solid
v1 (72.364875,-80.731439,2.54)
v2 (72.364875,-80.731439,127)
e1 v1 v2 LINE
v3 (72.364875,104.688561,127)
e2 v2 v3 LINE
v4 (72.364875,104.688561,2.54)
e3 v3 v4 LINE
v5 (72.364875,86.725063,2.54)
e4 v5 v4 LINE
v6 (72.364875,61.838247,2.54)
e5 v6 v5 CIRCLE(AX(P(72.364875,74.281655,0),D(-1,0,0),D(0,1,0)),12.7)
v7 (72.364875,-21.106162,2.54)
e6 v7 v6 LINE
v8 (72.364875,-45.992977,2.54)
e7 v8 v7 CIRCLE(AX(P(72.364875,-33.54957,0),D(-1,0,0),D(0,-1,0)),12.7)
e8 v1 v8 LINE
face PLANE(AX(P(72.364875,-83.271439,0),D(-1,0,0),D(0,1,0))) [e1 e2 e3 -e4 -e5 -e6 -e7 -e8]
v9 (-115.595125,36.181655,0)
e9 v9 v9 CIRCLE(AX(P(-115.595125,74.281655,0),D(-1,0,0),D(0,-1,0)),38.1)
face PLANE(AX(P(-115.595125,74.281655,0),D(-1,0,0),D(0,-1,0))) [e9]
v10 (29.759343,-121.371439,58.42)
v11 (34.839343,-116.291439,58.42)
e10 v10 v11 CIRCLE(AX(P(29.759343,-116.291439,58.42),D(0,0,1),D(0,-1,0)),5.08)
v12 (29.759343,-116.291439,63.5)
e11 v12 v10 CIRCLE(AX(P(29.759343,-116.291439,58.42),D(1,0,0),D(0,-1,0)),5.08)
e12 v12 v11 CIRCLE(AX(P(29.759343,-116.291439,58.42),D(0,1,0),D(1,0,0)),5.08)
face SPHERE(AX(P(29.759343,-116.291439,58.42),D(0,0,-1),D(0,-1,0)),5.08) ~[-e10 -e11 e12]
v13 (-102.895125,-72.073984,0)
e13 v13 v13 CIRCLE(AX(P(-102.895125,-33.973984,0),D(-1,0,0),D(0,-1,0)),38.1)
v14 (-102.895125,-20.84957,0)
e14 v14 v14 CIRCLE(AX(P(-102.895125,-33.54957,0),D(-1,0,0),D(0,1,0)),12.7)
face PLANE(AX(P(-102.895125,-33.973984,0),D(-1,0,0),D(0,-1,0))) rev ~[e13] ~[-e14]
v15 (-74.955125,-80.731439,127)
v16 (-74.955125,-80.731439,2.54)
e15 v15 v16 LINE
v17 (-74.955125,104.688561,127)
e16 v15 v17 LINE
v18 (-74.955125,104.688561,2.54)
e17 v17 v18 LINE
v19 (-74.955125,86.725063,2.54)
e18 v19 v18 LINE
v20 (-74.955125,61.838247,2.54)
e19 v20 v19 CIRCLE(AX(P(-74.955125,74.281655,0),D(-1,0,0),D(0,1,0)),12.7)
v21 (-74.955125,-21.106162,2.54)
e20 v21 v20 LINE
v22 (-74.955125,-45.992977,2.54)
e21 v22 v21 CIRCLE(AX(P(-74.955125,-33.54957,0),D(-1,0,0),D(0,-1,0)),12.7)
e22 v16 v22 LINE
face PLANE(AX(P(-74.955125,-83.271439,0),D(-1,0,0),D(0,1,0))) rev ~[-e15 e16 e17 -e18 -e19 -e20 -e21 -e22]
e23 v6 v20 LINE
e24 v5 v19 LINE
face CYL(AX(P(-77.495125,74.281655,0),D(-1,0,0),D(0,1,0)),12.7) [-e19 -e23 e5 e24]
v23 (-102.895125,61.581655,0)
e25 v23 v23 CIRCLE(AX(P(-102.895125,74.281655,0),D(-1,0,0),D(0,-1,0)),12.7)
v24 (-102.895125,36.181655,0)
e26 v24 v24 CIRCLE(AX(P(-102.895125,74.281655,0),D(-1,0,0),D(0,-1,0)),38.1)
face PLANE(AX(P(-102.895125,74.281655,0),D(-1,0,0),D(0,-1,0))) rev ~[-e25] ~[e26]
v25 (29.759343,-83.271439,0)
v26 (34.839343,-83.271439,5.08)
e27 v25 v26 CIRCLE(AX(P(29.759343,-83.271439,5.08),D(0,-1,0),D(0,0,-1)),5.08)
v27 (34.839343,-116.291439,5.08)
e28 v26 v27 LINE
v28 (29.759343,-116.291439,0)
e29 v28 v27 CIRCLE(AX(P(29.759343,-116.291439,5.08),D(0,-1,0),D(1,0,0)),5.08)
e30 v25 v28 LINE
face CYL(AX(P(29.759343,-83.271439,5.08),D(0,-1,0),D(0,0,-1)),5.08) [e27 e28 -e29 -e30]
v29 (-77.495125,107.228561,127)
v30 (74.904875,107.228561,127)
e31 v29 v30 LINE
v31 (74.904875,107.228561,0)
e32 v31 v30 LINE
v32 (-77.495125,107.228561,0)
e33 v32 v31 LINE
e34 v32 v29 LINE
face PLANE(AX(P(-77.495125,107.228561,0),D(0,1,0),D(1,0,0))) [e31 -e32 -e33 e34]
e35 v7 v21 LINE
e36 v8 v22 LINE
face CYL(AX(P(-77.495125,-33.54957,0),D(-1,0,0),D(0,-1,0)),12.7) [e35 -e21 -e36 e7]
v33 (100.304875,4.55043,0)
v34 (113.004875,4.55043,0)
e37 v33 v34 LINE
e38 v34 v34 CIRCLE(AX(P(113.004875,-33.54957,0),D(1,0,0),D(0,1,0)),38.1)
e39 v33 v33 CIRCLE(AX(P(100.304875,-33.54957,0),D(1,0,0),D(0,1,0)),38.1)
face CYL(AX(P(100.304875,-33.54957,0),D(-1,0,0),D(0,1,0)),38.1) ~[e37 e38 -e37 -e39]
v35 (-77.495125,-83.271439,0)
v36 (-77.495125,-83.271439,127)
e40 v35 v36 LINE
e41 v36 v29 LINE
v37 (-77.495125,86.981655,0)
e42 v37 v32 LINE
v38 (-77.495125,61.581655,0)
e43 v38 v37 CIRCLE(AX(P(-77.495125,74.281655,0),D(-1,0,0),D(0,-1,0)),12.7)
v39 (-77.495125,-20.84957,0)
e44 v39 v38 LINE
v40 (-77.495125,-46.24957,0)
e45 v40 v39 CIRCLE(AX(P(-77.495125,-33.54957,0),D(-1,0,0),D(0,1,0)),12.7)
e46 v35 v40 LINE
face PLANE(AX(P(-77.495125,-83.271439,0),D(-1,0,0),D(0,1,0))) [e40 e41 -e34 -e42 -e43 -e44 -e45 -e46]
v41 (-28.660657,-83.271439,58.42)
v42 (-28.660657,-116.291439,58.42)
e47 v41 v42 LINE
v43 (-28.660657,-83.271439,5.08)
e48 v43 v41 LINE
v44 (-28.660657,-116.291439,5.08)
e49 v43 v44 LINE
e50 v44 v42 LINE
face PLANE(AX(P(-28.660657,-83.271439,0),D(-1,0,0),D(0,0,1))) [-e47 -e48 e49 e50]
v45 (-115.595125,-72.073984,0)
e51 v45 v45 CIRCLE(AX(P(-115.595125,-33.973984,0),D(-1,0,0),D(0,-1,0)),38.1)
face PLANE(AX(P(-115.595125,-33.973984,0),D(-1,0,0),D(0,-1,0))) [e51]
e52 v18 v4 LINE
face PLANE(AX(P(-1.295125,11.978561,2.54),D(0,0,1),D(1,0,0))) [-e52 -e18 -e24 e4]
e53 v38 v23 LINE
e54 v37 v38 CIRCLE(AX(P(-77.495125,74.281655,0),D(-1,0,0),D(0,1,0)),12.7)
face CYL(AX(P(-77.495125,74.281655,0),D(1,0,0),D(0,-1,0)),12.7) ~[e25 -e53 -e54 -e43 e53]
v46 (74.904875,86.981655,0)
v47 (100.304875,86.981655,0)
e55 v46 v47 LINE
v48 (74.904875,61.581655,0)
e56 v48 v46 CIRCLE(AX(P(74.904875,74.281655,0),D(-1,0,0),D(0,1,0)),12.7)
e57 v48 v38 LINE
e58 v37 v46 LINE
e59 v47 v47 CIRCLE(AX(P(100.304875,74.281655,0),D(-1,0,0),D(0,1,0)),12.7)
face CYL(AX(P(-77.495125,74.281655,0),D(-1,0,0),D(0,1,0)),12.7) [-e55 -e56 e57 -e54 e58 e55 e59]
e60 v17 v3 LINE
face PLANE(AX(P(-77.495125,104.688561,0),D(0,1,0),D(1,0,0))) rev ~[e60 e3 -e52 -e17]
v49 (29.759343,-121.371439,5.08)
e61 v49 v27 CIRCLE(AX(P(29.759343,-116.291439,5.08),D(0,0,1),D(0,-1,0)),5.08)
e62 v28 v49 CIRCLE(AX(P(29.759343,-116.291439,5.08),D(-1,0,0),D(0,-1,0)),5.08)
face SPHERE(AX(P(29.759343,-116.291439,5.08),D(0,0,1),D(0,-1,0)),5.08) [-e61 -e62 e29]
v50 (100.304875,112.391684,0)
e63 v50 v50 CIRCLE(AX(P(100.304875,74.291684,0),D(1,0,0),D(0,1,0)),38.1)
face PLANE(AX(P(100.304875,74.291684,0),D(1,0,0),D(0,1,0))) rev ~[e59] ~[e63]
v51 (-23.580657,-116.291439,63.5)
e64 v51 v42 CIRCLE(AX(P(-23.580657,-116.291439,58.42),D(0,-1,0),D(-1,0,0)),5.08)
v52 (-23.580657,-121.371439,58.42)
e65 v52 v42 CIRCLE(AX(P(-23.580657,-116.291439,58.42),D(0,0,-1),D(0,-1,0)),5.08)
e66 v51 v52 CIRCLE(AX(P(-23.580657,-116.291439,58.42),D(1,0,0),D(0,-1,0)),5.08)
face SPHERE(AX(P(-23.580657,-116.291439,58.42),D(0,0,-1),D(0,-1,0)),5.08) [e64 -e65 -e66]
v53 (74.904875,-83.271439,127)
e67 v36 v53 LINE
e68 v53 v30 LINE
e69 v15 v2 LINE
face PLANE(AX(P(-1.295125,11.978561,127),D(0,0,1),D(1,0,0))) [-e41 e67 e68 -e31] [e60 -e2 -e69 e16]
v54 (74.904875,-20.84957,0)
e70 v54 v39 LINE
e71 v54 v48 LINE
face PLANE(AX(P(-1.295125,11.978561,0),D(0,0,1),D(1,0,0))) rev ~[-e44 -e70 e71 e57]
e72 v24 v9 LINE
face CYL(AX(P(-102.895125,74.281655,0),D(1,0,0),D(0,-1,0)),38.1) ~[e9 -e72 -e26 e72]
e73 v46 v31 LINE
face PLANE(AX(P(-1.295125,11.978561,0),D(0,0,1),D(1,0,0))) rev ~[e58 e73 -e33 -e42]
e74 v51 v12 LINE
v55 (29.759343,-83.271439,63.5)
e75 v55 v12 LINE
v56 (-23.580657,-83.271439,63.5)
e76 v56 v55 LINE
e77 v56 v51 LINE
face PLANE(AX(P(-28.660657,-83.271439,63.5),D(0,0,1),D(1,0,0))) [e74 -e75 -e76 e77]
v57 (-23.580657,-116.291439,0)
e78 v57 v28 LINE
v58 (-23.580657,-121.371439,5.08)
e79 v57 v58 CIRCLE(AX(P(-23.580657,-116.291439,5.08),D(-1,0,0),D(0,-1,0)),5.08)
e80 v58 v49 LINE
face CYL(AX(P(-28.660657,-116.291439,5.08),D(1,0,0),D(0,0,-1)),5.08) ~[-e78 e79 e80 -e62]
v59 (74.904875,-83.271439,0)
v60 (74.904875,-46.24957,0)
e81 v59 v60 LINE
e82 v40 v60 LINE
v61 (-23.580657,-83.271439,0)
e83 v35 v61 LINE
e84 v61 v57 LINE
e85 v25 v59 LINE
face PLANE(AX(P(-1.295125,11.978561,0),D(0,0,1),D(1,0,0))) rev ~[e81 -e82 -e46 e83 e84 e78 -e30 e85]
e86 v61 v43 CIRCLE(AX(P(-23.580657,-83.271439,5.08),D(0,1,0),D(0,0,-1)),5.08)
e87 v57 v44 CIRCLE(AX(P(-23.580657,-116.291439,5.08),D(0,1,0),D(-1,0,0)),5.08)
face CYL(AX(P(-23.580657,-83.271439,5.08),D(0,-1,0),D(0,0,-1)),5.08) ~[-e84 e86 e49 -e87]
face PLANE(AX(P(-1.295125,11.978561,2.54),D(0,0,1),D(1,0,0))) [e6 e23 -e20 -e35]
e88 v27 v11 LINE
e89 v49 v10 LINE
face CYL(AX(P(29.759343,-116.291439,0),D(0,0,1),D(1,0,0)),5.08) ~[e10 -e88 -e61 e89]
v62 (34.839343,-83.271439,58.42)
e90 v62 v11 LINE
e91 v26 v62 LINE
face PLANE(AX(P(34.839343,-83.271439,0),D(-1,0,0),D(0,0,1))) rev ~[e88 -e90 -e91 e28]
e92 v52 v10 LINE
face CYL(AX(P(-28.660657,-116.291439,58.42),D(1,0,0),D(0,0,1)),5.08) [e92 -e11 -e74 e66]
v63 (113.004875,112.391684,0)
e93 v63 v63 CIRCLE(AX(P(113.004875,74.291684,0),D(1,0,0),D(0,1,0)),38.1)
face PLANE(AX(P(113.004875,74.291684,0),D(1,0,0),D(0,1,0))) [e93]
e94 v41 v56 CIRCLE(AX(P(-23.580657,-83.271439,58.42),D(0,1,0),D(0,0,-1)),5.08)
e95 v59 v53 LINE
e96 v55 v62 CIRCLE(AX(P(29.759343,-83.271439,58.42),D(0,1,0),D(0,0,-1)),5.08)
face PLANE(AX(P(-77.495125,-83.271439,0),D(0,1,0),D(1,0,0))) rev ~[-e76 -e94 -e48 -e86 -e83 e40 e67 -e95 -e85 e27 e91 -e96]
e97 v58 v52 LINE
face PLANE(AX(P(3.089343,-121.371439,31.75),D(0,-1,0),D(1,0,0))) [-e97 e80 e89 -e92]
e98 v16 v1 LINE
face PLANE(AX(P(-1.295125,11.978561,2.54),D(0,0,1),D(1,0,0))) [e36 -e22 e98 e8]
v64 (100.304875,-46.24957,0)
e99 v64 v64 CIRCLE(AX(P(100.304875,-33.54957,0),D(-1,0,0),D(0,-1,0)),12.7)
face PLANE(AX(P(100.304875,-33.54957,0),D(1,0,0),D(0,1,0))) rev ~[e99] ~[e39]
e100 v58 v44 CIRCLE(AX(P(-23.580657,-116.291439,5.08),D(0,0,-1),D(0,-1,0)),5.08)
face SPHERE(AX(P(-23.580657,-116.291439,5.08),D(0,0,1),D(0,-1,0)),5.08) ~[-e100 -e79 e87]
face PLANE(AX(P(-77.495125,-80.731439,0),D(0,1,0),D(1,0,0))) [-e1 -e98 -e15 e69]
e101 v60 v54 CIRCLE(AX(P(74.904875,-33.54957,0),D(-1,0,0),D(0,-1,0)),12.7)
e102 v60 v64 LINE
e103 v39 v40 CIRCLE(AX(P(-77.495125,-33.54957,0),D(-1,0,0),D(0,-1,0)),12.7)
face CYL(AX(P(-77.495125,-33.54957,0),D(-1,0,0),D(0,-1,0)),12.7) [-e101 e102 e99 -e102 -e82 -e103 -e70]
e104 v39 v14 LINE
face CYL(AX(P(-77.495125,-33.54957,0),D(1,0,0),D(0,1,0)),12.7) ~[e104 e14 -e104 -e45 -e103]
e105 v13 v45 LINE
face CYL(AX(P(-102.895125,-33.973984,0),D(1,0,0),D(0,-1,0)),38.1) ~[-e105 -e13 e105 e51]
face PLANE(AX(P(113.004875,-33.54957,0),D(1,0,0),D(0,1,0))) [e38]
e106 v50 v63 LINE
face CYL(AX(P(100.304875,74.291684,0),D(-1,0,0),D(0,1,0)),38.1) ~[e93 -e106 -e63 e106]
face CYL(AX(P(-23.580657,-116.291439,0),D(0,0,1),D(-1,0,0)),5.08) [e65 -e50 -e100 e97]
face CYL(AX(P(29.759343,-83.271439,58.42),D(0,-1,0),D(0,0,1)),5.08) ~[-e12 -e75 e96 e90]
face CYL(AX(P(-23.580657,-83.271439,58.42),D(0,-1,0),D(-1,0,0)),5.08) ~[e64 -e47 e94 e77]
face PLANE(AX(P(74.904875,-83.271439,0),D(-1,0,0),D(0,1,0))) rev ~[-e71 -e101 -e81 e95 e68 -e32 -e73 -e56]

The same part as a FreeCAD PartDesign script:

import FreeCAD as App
import Part
import Sketcher
from FreeCAD import Vector
Q = App.Units.Quantity


def edges_at(feature, points):
    """Names of the edges that pass closest to the given points."""
    edges = feature.Shape.Edges
    near = lambda p: min(range(len(edges)), key=lambda i: edges[i].distToShape(Part.Vertex(*p))[0])
    return sorted({f"Edge{near(p) + 1}" for p in points})


def faces_at(feature, points):
    """Names of the faces that lie closest to the given points."""
    faces = feature.Shape.Faces
    near = lambda p: min(range(len(faces)), key=lambda i: faces[i].distToShape(Part.Vertex(*p))[0])
    return sorted({f"Face{near(p) + 1}" for p in points})


def add_polygon(sketch, points):
    """Adds a closed chain of lines whose ends are joined by coincident constraints."""
    first, n = sketch.GeometryCount, len(points)
    for a, b in zip(points, points[1:] + points[:1]):
        sketch.addGeometry(Part.LineSegment(App.Vector(*a, 0), App.Vector(*b, 0)), False)
    for i in range(n):
        sketch.addConstraint(Sketcher.Constraint("Coincident", first + i, 2, first + (i + 1) % n, 1))

doc = App.newDocument("Part")
body = doc.addObject("PartDesign::Body", "Body")

sketch1 = body.newObject("Sketcher::SketchObject", "Sketch")
sketch1.AttachmentSupport = (doc.getObject("XY_Plane"), [""])
sketch1.MapMode = "FlatFace"
add_polygon(sketch1, [(-77, 107), (-77, -83), (75, -83), (75, 107)])
sketch1.addConstraint([
    Sketcher.Constraint("Vertical", 0),
    Sketcher.Constraint("Horizontal", 1),
    Sketcher.Constraint("Vertical", 2),
    Sketcher.Constraint("Horizontal", 3),
    Sketcher.Constraint("DistanceX", 1, 1, 1, 2, Q("6 in")),
    Sketcher.Constraint("DistanceY", 0, 2, 0, 1, Q("7.5 in")),
    Sketcher.Constraint("DistanceY", 0, 2, -1, 1, 83.271439),
    Sketcher.Constraint("DistanceX", 0, 2, -1, 1, 77.495125),
])
pad1 = body.newObject("PartDesign::Pad", "Pad")
pad1.Profile = sketch1
pad1.Length = Q("5 in")
doc.recompute()

thickness = body.newObject("PartDesign::Thickness", "Thickness")
thickness.Base = (pad1, faces_at(pad1, [(-1.295, 11.979, 127)]))
thickness.Value = Q("0.1 in")
thickness.Reversed = True
thickness.Join = "Arc"

sketch2 = body.newObject("Sketcher::SketchObject", "Sketch001")
sketch2.AttachmentSupport = (doc.getObject("XZ_Plane"), [""])
sketch2.MapMode = "FlatFace"
sketch2.AttachmentOffset = App.Placement(Vector(0, 0, 83.271439), App.Rotation())
add_polygon(sketch2, [(-29, 64), (-29, 0), (35, 0), (35, 64)])
sketch2.addConstraint([
    Sketcher.Constraint("Vertical", 0),
    Sketcher.Constraint("Horizontal", 1),
    Sketcher.Constraint("Vertical", 2),
    Sketcher.Constraint("Horizontal", 3),
    Sketcher.Constraint("PointOnObject", 0, 2, -1),
    Sketcher.Constraint("Equal", 3, 0),
    Sketcher.Constraint("DistanceX", 1, 1, 1, 2, Q("2.5 in")),
    Sketcher.Constraint("DistanceX", 0, 2, -1, 1, 28.660657),
])
pad2 = body.newObject("PartDesign::Pad", "Pad001")
pad2.Profile = sketch2
pad2.Length = Q("1.5 in")
doc.recompute()

fillet = body.newObject("PartDesign::Fillet", "Fillet")
fillet.Base = (pad2, edges_at(pad2, [
    (-28.661, -121.371, 31.75),
    (34.839, -121.371, 31.75),
    (3.089, -121.371, 63.5),
    (34.839, -102.321, 63.5),
    (-28.661, -102.321, 63.5),
    (3.089, -121.371, 0),
    (-28.661, -102.321, 0),
    (34.839, -102.321, 0),
]))
fillet.Radius = Q("0.2 in")

sketch3 = body.newObject("Sketcher::SketchObject", "Sketch002")
sketch3.AttachmentSupport = (doc.getObject("YZ_Plane"), [""])
sketch3.MapMode = "FlatFace"
sketch3.AttachmentOffset = App.Placement(Vector(0, 0, -77.495125), App.Rotation())
sketch3.addGeometry([
    Part.Circle(Vector(-34, 0, 0), Vector(0, 0, 1), 13),
    Part.Circle(Vector(74, 0, 0), Vector(0, 0, 1), 13),
], False)
sketch3.addConstraint([
    Sketcher.Constraint("Equal", 0, 1),
    Sketcher.Constraint("PointOnObject", 0, 3, -1),
    Sketcher.Constraint("PointOnObject", 1, 3, -1),
    Sketcher.Constraint("Diameter", 0, Q("1 in")),
    Sketcher.Constraint("DistanceX", 0, 3, -1, 1, 33.54957),
    Sketcher.Constraint("DistanceX", -1, 1, 1, 3, 74.281655),
])
pad3 = body.newObject("PartDesign::Pad", "Pad002")
pad3.Profile = sketch3
pad3.Length = Q("7 in")

sketch4 = body.newObject("Sketcher::SketchObject", "Sketch003")
sketch4.AttachmentSupport = (doc.getObject("YZ_Plane"), [""])
sketch4.MapMode = "FlatFace"
sketch4.AttachmentOffset = App.Placement(Vector(0, 0, 100.304875), App.Rotation())
sketch4.addGeometry([
    Part.Circle(Vector(-34, 0, 0), Vector(0, 0, 1), 38),
    Part.Circle(Vector(74, 0, 0), Vector(0, 0, 1), 38),
], False)
sketch4.addConstraint([
    Sketcher.Constraint("Equal", 0, 1),
    Sketcher.Constraint("PointOnObject", 0, 3, -1),
    Sketcher.Constraint("PointOnObject", 1, 3, -1),
    Sketcher.Constraint("Diameter", 0, Q("3 in")),
    Sketcher.Constraint("DistanceX", 0, 3, -1, 1, 33.54957),
    Sketcher.Constraint("DistanceX", -1, 1, 1, 3, 74.291684),
])
pad4 = body.newObject("PartDesign::Pad", "Pad003")
pad4.Profile = sketch4
pad4.Length = Q("0.5 in")

sketch5 = body.newObject("Sketcher::SketchObject", "Sketch004")
sketch5.AttachmentSupport = (doc.getObject("YZ_Plane"), [""])
sketch5.MapMode = "FlatFace"
sketch5.AttachmentOffset = App.Placement(Vector(0, 0, -77.495125), App.Rotation())
sketch5.addGeometry([
    Part.Circle(Vector(-34, 0, 0), Vector(0, 0, 1), 13),
    Part.Circle(Vector(74, 0, 0), Vector(0, 0, 1), 13),
], False)
sketch5.addConstraint([
    Sketcher.Constraint("Equal", 0, 1),
    Sketcher.Constraint("PointOnObject", 0, 3, -1),
    Sketcher.Constraint("PointOnObject", 1, 3, -1),
    Sketcher.Constraint("Diameter", 0, Q("1 in")),
    Sketcher.Constraint("DistanceX", 0, 3, -1, 1, 33.54957),
    Sketcher.Constraint("DistanceX", -1, 1, 1, 3, 74.281655),
])
pad5 = body.newObject("PartDesign::Pad", "Pad004")
pad5.Profile = sketch5
pad5.Length = Q("1 in")
pad5.Reversed = True

sketch6 = body.newObject("Sketcher::SketchObject", "Sketch005")
sketch6.AttachmentSupport = (doc.getObject("YZ_Plane"), [""])
sketch6.MapMode = "FlatFace"
sketch6.AttachmentOffset = App.Placement(Vector(0, 0, -102.895125), App.Rotation())
sketch6.addGeometry([
    Part.Circle(Vector(74, 0, 0), Vector(0, 0, 1), 38),
    Part.Circle(Vector(-34, 0, 0), Vector(0, 0, 1), 38),
], False)
sketch6.addConstraint([
    Sketcher.Constraint("Equal", 0, 1),
    Sketcher.Constraint("PointOnObject", 0, 3, -1),
    Sketcher.Constraint("PointOnObject", 1, 3, -1),
    Sketcher.Constraint("Diameter", 0, Q("3 in")),
    Sketcher.Constraint("DistanceX", 1, 3, 0, 3, 108.25564),
    Sketcher.Constraint("DistanceX", -1, 1, 0, 3, 74.281655),
])
pad6 = body.newObject("PartDesign::Pad", "Pad005")
pad6.Profile = sketch6
pad6.Length = Q("0.5 in")
pad6.Reversed = True

doc.recompute()
